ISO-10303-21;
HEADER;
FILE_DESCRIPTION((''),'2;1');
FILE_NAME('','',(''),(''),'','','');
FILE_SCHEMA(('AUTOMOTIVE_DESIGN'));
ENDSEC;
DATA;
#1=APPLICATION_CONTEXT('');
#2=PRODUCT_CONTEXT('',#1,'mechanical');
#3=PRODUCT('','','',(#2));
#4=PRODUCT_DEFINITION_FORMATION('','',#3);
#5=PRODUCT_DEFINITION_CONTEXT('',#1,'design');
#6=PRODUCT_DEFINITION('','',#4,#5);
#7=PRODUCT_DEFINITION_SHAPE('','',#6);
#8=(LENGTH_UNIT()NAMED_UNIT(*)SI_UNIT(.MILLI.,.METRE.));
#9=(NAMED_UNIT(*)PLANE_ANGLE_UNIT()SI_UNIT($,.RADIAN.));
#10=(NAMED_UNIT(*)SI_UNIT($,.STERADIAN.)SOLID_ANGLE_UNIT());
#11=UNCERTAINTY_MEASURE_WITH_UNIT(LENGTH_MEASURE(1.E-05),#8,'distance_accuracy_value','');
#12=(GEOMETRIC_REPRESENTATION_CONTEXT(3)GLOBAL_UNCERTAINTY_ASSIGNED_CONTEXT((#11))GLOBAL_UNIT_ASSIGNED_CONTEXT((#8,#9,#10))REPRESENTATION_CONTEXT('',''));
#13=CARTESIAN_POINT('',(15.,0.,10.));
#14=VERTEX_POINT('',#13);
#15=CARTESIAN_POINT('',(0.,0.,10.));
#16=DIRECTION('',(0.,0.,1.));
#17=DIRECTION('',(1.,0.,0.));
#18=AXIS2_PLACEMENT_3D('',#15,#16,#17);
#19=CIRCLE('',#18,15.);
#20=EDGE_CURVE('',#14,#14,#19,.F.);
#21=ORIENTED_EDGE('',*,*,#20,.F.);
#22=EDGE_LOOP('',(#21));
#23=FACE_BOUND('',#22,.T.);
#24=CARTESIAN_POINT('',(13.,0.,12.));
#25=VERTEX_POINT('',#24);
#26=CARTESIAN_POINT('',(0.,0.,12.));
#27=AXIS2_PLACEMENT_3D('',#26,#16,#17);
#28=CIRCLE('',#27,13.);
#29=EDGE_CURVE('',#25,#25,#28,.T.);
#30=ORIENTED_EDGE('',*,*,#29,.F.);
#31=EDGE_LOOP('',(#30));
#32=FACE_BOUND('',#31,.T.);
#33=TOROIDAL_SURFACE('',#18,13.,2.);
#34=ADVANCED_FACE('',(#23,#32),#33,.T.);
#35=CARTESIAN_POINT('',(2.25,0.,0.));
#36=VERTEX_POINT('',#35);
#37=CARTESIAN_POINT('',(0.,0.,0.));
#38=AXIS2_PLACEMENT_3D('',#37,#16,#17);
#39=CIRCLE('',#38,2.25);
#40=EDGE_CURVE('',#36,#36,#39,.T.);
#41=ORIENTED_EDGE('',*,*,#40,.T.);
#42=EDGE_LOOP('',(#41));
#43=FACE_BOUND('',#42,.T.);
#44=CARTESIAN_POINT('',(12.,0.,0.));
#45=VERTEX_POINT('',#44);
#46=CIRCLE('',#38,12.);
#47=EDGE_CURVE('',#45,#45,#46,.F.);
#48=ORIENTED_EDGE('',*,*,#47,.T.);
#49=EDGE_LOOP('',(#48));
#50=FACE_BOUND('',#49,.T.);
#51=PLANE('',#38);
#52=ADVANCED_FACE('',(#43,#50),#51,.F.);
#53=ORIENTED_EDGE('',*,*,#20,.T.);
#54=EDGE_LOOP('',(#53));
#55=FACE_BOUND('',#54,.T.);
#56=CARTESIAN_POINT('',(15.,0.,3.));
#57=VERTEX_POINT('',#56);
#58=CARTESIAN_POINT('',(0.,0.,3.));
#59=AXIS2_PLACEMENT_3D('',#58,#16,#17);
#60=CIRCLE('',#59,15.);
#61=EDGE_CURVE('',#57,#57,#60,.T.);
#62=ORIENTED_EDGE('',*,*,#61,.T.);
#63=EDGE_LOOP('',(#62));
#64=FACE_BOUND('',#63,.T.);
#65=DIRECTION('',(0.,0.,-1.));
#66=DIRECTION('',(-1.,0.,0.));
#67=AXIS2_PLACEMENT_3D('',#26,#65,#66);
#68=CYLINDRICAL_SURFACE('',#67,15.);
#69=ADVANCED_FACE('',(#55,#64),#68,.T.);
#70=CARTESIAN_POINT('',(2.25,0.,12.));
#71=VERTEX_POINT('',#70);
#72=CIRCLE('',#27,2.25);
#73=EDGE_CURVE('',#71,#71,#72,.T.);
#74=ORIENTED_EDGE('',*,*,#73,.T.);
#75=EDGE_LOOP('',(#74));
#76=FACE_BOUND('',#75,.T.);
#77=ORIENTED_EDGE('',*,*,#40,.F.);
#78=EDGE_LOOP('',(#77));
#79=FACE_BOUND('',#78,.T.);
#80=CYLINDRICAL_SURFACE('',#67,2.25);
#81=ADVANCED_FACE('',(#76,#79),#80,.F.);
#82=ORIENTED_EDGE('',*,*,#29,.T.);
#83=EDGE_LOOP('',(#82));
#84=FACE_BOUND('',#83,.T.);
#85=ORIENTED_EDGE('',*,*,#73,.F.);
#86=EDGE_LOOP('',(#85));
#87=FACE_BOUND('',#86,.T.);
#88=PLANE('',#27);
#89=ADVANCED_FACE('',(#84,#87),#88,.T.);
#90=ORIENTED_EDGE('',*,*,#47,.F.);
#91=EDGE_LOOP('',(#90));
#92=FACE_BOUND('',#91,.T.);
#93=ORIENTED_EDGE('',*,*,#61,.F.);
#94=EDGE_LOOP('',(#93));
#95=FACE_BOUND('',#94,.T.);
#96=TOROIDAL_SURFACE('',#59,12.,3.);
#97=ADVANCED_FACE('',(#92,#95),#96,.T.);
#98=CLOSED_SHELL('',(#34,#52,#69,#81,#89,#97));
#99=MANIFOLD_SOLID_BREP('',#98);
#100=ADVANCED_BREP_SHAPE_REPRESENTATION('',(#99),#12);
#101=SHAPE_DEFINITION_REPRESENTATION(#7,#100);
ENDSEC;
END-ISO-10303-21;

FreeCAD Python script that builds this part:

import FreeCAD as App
import Part
import Sketcher

V = App.Vector
Q = App.Units.Quantity


def edges_at(feature, points):
    """Names of the edges that pass closest to the given points."""
    edges = feature.Shape.Edges
    near = lambda p: min(range(len(edges)), key=lambda i: edges[i].distToShape(Part.Vertex(*p))[0])
    return sorted({f"Edge{near(p) + 1}" for p in points})

doc = App.newDocument("Part")
body = doc.addObject("PartDesign::Body", "Body")

# Sketch on XY plane
sketch1 = doc.addObject("Sketcher::SketchObject", "Sketch")
body.addObject(sketch1)
sketch1.AttachmentSupport = (doc.XY_Plane, [""])
sketch1.MapMode = "FlatFace"
sketch1.addGeometry(Part.Circle(V(0, 0, 0), V(0, 0, 1), 15), False)
sketch1.addGeometry(Part.Circle(V(0, 0, 0), V(0, 0, 1), 2.25), False)
sketch1.addConstraint(Sketcher.Constraint("Coincident", 0, 3, -1, 1))
sketch1.addConstraint(Sketcher.Constraint("Coincident", 1, 3, -1, 1))
sketch1.addConstraint(Sketcher.Constraint("Diameter", 0, Q("30 mm")))
sketch1.addConstraint(Sketcher.Constraint("Diameter", 1, Q("4.5 mm")))
pad1 = doc.addObject("PartDesign::Pad", "Pad")
body.addObject(pad1)
pad1.Profile = sketch1
pad1.Length = 12
doc.recompute()

fillet = doc.addObject("PartDesign::Fillet", "Fillet")
body.addObject(fillet)
fillet.Base = (pad1, edges_at(pad1, [(-15, 0, 12)]))
fillet.Radius = 2
doc.recompute()

fillet2 = doc.addObject("PartDesign::Fillet", "Fillet001")
body.addObject(fillet2)
fillet2.Base = (fillet, edges_at(fillet, [(-15, 0, 0)]))
fillet2.Radius = 3

doc.recompute()
